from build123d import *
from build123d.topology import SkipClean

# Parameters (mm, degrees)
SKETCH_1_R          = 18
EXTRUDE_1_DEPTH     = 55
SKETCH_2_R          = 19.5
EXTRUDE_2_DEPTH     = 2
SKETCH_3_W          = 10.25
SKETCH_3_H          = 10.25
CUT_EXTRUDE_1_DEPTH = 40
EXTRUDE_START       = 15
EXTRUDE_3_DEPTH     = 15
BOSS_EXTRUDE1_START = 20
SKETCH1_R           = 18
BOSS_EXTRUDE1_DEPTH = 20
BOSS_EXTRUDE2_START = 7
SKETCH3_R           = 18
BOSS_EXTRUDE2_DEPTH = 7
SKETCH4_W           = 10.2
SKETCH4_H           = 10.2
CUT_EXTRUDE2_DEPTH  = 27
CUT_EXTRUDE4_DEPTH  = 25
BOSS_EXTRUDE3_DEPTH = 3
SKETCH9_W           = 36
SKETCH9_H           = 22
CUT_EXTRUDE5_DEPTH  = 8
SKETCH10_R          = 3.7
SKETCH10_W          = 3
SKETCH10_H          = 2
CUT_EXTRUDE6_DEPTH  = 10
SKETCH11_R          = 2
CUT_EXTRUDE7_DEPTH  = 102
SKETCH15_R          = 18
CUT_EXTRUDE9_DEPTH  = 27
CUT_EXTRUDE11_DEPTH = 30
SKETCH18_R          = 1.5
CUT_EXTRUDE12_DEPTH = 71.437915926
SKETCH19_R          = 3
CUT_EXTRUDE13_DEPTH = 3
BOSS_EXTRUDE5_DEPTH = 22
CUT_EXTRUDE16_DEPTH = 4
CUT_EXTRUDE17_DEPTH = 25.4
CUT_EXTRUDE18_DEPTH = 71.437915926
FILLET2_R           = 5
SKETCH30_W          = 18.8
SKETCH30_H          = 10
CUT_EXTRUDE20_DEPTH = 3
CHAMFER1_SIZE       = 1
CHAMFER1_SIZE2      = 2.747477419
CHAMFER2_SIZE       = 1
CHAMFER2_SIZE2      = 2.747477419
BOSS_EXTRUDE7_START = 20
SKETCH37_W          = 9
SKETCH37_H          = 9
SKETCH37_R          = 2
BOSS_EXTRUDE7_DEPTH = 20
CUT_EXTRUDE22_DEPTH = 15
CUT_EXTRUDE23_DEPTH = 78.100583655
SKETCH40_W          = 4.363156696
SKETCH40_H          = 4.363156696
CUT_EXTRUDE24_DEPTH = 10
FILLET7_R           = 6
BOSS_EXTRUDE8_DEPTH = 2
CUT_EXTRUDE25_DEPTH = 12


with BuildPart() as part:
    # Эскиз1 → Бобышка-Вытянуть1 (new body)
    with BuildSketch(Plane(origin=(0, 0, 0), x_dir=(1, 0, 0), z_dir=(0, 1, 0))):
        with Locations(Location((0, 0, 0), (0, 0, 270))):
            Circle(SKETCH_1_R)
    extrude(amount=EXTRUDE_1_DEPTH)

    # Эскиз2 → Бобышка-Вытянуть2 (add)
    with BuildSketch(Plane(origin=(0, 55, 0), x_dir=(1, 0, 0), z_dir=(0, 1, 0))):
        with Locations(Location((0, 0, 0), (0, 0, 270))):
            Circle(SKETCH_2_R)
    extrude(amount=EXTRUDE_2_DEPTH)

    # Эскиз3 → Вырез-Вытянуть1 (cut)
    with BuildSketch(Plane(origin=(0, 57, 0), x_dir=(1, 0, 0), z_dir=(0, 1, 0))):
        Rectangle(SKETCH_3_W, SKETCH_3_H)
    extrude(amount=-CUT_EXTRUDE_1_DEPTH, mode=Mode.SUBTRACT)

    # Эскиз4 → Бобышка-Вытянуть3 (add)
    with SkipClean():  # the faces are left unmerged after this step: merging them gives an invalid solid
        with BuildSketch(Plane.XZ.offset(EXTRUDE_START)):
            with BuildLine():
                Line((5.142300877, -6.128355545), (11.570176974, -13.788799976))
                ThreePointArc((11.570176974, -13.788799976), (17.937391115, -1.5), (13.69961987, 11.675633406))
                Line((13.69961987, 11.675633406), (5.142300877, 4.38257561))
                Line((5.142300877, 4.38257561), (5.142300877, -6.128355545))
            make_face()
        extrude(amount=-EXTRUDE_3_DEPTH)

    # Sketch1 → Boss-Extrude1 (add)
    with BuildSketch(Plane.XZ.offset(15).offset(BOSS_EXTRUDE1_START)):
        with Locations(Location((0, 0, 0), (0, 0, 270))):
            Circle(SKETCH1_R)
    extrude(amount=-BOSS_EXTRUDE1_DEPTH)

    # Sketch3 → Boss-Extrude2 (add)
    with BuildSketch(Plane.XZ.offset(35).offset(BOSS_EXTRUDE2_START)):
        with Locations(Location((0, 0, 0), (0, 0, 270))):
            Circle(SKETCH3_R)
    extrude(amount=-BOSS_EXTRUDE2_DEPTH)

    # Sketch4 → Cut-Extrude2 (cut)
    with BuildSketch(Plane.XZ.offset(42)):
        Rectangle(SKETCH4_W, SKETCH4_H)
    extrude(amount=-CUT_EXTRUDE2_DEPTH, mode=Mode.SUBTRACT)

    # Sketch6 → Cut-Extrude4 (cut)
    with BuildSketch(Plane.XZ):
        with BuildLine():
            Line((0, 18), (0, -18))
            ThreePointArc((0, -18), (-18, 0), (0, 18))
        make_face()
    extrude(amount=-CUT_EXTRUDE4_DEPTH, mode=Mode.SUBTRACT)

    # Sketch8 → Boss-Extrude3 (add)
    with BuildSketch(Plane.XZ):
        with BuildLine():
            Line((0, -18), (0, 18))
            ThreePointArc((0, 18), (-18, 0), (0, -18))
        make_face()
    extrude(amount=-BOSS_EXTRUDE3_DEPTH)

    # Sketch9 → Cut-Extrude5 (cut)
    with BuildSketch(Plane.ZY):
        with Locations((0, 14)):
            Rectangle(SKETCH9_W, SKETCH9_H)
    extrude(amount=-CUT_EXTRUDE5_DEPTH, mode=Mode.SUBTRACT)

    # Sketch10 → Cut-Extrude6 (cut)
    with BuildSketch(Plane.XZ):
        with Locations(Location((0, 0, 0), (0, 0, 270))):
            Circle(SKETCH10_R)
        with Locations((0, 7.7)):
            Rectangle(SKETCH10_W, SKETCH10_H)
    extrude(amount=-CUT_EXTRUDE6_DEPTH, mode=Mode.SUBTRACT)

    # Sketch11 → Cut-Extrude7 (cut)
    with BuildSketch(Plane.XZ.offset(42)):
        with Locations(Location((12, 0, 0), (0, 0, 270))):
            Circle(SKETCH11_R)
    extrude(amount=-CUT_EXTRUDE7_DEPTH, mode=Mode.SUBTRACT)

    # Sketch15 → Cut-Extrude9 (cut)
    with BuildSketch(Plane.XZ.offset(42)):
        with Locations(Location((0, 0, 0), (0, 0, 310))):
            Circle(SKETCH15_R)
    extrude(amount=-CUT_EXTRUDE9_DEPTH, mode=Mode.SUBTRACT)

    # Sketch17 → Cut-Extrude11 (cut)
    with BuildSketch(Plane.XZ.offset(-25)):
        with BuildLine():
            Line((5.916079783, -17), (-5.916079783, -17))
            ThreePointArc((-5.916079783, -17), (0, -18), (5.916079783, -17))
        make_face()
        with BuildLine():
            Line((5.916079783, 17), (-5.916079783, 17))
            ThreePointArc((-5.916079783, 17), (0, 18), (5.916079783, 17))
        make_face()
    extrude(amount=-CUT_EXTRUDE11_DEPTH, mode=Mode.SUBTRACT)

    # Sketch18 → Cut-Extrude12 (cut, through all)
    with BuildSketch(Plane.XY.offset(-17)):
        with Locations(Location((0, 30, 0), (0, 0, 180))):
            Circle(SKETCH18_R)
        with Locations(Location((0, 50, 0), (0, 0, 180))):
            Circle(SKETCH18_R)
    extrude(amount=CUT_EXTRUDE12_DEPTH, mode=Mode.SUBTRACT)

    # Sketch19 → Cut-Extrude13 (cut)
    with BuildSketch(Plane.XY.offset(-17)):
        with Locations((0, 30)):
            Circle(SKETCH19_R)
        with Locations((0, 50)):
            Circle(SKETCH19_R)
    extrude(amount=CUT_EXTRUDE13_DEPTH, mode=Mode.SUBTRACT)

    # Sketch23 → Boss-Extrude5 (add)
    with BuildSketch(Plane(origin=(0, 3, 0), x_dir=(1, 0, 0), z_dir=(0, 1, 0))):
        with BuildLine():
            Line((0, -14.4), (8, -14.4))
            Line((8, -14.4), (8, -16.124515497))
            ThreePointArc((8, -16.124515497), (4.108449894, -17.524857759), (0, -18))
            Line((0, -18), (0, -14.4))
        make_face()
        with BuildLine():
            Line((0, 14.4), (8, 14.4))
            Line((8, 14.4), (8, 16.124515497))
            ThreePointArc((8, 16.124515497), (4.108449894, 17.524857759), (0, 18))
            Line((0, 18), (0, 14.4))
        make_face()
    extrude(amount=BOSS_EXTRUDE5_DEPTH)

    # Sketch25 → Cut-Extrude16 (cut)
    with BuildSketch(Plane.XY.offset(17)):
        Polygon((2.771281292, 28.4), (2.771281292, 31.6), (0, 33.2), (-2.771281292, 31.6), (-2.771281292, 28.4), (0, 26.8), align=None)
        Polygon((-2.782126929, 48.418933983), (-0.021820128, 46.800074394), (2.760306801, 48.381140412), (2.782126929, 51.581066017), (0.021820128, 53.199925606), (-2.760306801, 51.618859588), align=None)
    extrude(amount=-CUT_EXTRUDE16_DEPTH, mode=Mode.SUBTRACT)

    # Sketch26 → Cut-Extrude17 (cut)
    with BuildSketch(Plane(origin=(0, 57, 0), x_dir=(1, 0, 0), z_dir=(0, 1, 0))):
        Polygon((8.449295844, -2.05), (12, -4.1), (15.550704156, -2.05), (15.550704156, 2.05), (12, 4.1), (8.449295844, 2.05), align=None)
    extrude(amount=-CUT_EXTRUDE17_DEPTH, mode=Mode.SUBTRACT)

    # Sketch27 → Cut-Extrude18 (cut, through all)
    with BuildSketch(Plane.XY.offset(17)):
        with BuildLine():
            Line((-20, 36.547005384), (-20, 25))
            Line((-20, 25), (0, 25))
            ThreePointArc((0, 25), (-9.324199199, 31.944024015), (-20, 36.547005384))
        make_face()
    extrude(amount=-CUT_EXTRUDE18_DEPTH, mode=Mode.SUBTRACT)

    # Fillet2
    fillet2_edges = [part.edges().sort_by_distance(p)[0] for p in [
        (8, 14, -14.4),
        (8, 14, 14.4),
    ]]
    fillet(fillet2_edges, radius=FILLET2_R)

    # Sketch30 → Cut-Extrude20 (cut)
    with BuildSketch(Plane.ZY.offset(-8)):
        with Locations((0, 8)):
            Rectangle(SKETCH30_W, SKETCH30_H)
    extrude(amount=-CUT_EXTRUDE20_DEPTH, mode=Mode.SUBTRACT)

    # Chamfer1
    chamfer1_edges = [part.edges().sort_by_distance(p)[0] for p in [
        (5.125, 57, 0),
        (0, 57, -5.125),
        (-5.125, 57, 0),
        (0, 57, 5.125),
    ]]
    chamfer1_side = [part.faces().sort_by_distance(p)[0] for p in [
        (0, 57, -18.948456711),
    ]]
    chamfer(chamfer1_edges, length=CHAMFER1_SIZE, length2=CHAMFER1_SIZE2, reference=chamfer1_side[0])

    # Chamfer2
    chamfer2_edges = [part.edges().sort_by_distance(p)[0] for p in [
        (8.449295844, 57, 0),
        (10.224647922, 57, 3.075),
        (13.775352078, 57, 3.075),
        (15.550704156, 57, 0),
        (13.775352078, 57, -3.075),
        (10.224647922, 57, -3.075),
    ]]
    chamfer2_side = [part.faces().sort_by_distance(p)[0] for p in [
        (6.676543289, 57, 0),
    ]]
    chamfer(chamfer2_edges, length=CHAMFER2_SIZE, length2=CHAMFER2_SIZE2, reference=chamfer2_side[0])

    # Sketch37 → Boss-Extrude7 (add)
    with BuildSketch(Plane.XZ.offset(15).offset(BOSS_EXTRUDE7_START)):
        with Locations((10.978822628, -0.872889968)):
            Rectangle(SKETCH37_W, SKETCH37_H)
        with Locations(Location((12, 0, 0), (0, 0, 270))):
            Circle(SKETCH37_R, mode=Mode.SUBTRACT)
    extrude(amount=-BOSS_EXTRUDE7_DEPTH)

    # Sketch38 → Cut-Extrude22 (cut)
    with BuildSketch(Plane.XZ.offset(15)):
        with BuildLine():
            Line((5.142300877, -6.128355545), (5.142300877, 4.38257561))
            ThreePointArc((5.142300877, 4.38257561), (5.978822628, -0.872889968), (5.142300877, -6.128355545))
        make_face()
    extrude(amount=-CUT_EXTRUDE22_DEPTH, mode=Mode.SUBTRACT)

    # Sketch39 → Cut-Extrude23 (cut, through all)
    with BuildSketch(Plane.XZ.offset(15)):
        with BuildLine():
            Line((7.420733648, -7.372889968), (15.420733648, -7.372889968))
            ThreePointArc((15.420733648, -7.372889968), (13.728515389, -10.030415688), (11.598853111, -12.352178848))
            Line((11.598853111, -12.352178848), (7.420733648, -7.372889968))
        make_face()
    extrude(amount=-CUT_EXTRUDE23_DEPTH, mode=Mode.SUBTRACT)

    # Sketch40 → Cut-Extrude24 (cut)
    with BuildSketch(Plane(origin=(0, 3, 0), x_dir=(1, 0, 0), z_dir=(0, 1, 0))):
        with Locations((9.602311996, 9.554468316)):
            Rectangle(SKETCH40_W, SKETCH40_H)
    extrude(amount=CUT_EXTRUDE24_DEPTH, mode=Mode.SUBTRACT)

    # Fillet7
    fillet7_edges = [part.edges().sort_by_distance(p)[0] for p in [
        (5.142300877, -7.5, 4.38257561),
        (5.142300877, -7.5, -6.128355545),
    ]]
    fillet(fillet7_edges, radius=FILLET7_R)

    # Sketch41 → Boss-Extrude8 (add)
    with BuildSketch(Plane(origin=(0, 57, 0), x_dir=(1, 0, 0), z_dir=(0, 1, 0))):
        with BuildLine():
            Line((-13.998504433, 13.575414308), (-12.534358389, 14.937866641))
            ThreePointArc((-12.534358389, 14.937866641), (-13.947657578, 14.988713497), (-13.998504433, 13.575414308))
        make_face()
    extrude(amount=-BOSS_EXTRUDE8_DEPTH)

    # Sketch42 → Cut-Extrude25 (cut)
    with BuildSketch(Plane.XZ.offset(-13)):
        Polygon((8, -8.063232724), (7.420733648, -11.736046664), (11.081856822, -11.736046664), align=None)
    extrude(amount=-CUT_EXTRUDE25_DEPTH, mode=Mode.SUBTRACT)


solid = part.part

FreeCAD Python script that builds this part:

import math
import FreeCAD as App
import Part
import Sketcher

V = App.Vector
Q = App.Units.Quantity


def edges_at(feature, points):
    """Names of the edges that pass closest to the given points."""
    edges = feature.Shape.Edges
    near = lambda p: min(range(len(edges)), key=lambda i: edges[i].distToShape(Part.Vertex(*p))[0])
    return sorted({f"Edge{near(p) + 1}" for p in points})


def add_polygon(sketch, points):
    """Adds a closed chain of lines whose ends are joined by coincident constraints."""
    first, n = sketch.GeometryCount, len(points)
    for a, b in zip(points, points[1:] + points[:1]):
        sketch.addGeometry(Part.LineSegment(App.Vector(*a, 0), App.Vector(*b, 0)), False)
    for i in range(n):
        sketch.addConstraint(Sketcher.Constraint("Coincident", first + i, 2, first + (i + 1) % n, 1))

doc = App.newDocument("Part")
body = doc.addObject("PartDesign::Body", "Body")

sketch1 = body.newObject("Sketcher::SketchObject", "Sketch")
sketch1.AttachmentSupport = (doc.getObject("XZ_Plane"), [""])
sketch1.MapMode = "FlatFace"
sketch1.addGeometry(Part.Circle(V(0, 0, 0), V(0, 0, 1), 18), False)
sketch1.addConstraint(Sketcher.Constraint("Coincident", 0, 3, -1, 1))
sketch1.addConstraint(Sketcher.Constraint("Diameter", 0, Q("36 mm")))
pad1 = body.newObject("PartDesign::Pad", "Pad")
pad1.Profile = sketch1
pad1.Length = 55
pad1.Reversed = True

sketch2 = body.newObject("Sketcher::SketchObject", "Sketch001")
sketch2.AttachmentSupport = (doc.getObject("XZ_Plane"), [""])
sketch2.MapMode = "FlatFace"
sketch2.AttachmentOffset = App.Placement(V(0, 0, -55), App.Rotation())
sketch2.addGeometry(Part.Circle(V(0, 0, 0), V(0, 0, 1), 20), False)
sketch2.addConstraint(Sketcher.Constraint("Coincident", 0, 3, -1, 1))
sketch2.addConstraint(Sketcher.Constraint("Diameter", 0, Q("39 mm")))
pad2 = body.newObject("PartDesign::Pad", "Pad001")
pad2.Profile = sketch2
pad2.Length = 2
pad2.Reversed = True

sketch3 = body.newObject("Sketcher::SketchObject", "Sketch002")
sketch3.AttachmentSupport = (doc.getObject("XZ_Plane"), [""])
sketch3.MapMode = "FlatFace"
sketch3.AttachmentOffset = App.Placement(V(0, 0, -57), App.Rotation())
add_polygon(sketch3, [(-5, -5), (-5, 5), (5, 5), (5, -5)])
sketch3.addConstraint(Sketcher.Constraint("Vertical", 0))
sketch3.addConstraint(Sketcher.Constraint("Horizontal", 1))
sketch3.addConstraint(Sketcher.Constraint("Vertical", 2))
sketch3.addConstraint(Sketcher.Constraint("Horizontal", 3))
sketch3.addConstraint(Sketcher.Constraint("Symmetric", 0, 2, 2, 2, -1, 1))
sketch3.addConstraint(Sketcher.Constraint("Equal", 3, 0))
sketch3.addConstraint(Sketcher.Constraint("DistanceX", 1, 1, 1, 2, Q("10.25 mm")))
pocket1 = body.newObject("PartDesign::Pocket", "Pocket")
pocket1.Profile = sketch3
pocket1.Length = 40
pocket1.Reversed = True

sketch4 = body.newObject("Sketcher::SketchObject", "Sketch003")
sketch4.AttachmentSupport = (doc.getObject("XZ_Plane"), [""])
sketch4.MapMode = "FlatFace"
sketch4.AttachmentOffset = App.Placement(V(0, 0, 15), App.Rotation())
sketch4.addGeometry(Part.LineSegment(V(5, -6, 0), V(12, -14, 0)), False)
sketch4.addGeometry(Part.ArcOfCircle(Part.Circle(V(0, 0, 0), V(0, 0, 1), 18), math.radians(-50), math.radians(40)), False)
sketch4.addGeometry(Part.LineSegment(V(14, 12, 0), V(5, 4, 0)), False)
sketch4.addGeometry(Part.LineSegment(V(5, 4, 0), V(5, -6, 0)), False)
sketch4.addConstraint(Sketcher.Constraint("Coincident", 0, 2, 1, 1))
sketch4.addConstraint(Sketcher.Constraint("Coincident", 1, 2, 2, 1))
sketch4.addConstraint(Sketcher.Constraint("Coincident", 2, 2, 3, 1))
sketch4.addConstraint(Sketcher.Constraint("Coincident", 3, 2, 0, 1))
sketch4.addConstraint(Sketcher.Constraint("Vertical", 3))
sketch4.addConstraint(Sketcher.Constraint("Coincident", 1, 3, -1, 1))
sketch4.addConstraint(Sketcher.Constraint("Radius", 1, Q("18 mm")))
sketch4.addConstraint(Sketcher.Constraint("Angle", 0, Q("-50 deg")))
sketch4.addConstraint(Sketcher.Constraint("Distance", 0, Q("10 mm")))
sketch4.addConstraint(Sketcher.Constraint("DistanceY", 3, 2, 3, 1, Q("10.510931 mm")))
sketch4.addConstraint(Sketcher.Constraint("DistanceY", 0, 2, -1, 1, Q("13.7888 mm")))
sketch4.addConstraint(Sketcher.Constraint("DistanceX", -1, 1, 1, 2, Q("13.69962 mm")))
pad3 = body.newObject("PartDesign::Pad", "Pad002")
pad3.Profile = sketch4
pad3.Length = 15
pad3.Reversed = True

sketch5 = body.newObject("Sketcher::SketchObject", "Sketch004")
sketch5.AttachmentSupport = (doc.getObject("XZ_Plane"), [""])
sketch5.MapMode = "FlatFace"
sketch5.AttachmentOffset = App.Placement(V(0, 0, 35), App.Rotation())
sketch5.addGeometry(Part.Circle(V(0, 0, 0), V(0, 0, 1), 18), False)
sketch5.addConstraint(Sketcher.Constraint("Coincident", 0, 3, -1, 1))
sketch5.addConstraint(Sketcher.Constraint("Diameter", 0, Q("36 mm")))
pad4 = body.newObject("PartDesign::Pad", "Pad003")
pad4.Profile = sketch5
pad4.Length = 20
pad4.Reversed = True

sketch6 = body.newObject("Sketcher::SketchObject", "Sketch005")
sketch6.AttachmentSupport = (doc.getObject("XZ_Plane"), [""])
sketch6.MapMode = "FlatFace"
sketch6.AttachmentOffset = App.Placement(V(0, 0, 42), App.Rotation())
sketch6.addGeometry(Part.Circle(V(0, 0, 0), V(0, 0, 1), 18), False)
sketch6.addConstraint(Sketcher.Constraint("Coincident", 0, 3, -1, 1))
sketch6.addConstraint(Sketcher.Constraint("Diameter", 0, Q("36 mm")))
pad5 = body.newObject("PartDesign::Pad", "Pad004")
pad5.Profile = sketch6
pad5.Length = 7
pad5.Reversed = True

sketch7 = body.newObject("Sketcher::SketchObject", "Sketch006")
sketch7.AttachmentSupport = (doc.getObject("XZ_Plane"), [""])
sketch7.MapMode = "FlatFace"
sketch7.AttachmentOffset = App.Placement(V(0, 0, 42), App.Rotation())
add_polygon(sketch7, [(-5, 5), (-5, -5), (5, -5), (5, 5)])
sketch7.addConstraint(Sketcher.Constraint("Vertical", 0))
sketch7.addConstraint(Sketcher.Constraint("Horizontal", 1))
sketch7.addConstraint(Sketcher.Constraint("Vertical", 2))
sketch7.addConstraint(Sketcher.Constraint("Horizontal", 3))
sketch7.addConstraint(Sketcher.Constraint("Symmetric", 0, 2, 2, 2, -1, 1))
sketch7.addConstraint(Sketcher.Constraint("Equal", 3, 0))
sketch7.addConstraint(Sketcher.Constraint("DistanceX", 1, 1, 1, 2, Q("10.2 mm")))
pocket2 = body.newObject("PartDesign::Pocket", "Pocket001")
pocket2.Profile = sketch7
pocket2.Length = 27

sketch8 = body.newObject("Sketcher::SketchObject", "Sketch007")
sketch8.AttachmentSupport = (doc.getObject("XZ_Plane"), [""])
sketch8.MapMode = "FlatFace"
sketch8.addGeometry(Part.LineSegment(V(0, -18, 0), V(0, 18, 0)), False)
sketch8.addGeometry(Part.ArcOfCircle(Part.Circle(V(0, 0, 0), V(0, 0, 1), 18), math.radians(90), math.radians(270)), False)
sketch8.addConstraint(Sketcher.Constraint("Coincident", 0, 1, 1, 2))
sketch8.addConstraint(Sketcher.Constraint("Coincident", 1, 1, 0, 2))
sketch8.addConstraint(Sketcher.Constraint("Vertical", 0))
sketch8.addConstraint(Sketcher.Constraint("Coincident", 1, 3, -1, 1))
sketch8.addConstraint(Sketcher.Constraint("PointOnObject", 0, 1, -2))
sketch8.addConstraint(Sketcher.Constraint("Radius", 1, Q("18 mm")))
pocket3 = body.newObject("PartDesign::Pocket", "Pocket002")
pocket3.Profile = sketch8
pocket3.Length = 25

sketch9 = body.newObject("Sketcher::SketchObject", "Sketch008")
sketch9.AttachmentSupport = (doc.getObject("XZ_Plane"), [""])
sketch9.MapMode = "FlatFace"
sketch9.addGeometry(Part.LineSegment(V(0, -18, 0), V(0, 18, 0)), False)
sketch9.addGeometry(Part.ArcOfCircle(Part.Circle(V(0, 0, 0), V(0, 0, 1), 18), math.radians(90), math.radians(270)), False)
sketch9.addConstraint(Sketcher.Constraint("Coincident", 0, 1, 1, 2))
sketch9.addConstraint(Sketcher.Constraint("Coincident", 1, 1, 0, 2))
sketch9.addConstraint(Sketcher.Constraint("Vertical", 0))
sketch9.addConstraint(Sketcher.Constraint("Coincident", 1, 3, -1, 1))
sketch9.addConstraint(Sketcher.Constraint("PointOnObject", 0, 1, -2))
sketch9.addConstraint(Sketcher.Constraint("Radius", 1, Q("18 mm")))
pad6 = body.newObject("PartDesign::Pad", "Pad005")
pad6.Profile = sketch9
pad6.Length = 3
pad6.Reversed = True

sketch10 = body.newObject("Sketcher::SketchObject", "Sketch009")
sketch10.AttachmentSupport = (doc.getObject("YZ_Plane"), [""])
sketch10.MapMode = "FlatFace"
add_polygon(sketch10, [(25, -18), (3, -18), (3, 18), (25, 18)])
sketch10.addConstraint(Sketcher.Constraint("Horizontal", 0))
sketch10.addConstraint(Sketcher.Constraint("Vertical", 1))
sketch10.addConstraint(Sketcher.Constraint("Horizontal", 2))
sketch10.addConstraint(Sketcher.Constraint("Vertical", 3))
sketch10.addConstraint(Sketcher.Constraint("DistanceX", 0, 2, 0, 1, Q("22 mm")))
sketch10.addConstraint(Sketcher.Constraint("DistanceY", 1, 1, 1, 2, Q("36 mm")))
sketch10.addConstraint(Sketcher.Constraint("DistanceX", -1, 1, 0, 2, Q("3 mm")))
sketch10.addConstraint(Sketcher.Constraint("DistanceY", 0, 2, -1, 1, Q("18 mm")))
pocket4 = body.newObject("PartDesign::Pocket", "Pocket003")
pocket4.Profile = sketch10
pocket4.Length = 8
pocket4.Reversed = True

sketch11 = body.newObject("Sketcher::SketchObject", "Sketch010")
sketch11.AttachmentSupport = (doc.getObject("XZ_Plane"), [""])
sketch11.MapMode = "FlatFace"
sketch11.addGeometry(Part.Circle(V(0, 0, 0), V(0, 0, 1), 3.7), False)
add_polygon(sketch11, [(-1.5, 8.7), (-1.5, 6.7), (1.5, 6.7), (1.5, 8.7)])
sketch11.addConstraint(Sketcher.Constraint("Vertical", 1))
sketch11.addConstraint(Sketcher.Constraint("Horizontal", 2))
sketch11.addConstraint(Sketcher.Constraint("Vertical", 3))
sketch11.addConstraint(Sketcher.Constraint("Horizontal", 4))
sketch11.addConstraint(Sketcher.Constraint("Coincident", 0, 3, -1, 1))
sketch11.addConstraint(Sketcher.Constraint("Diameter", 0, Q("7.4 mm")))
sketch11.addConstraint(Sketcher.Constraint("DistanceX", 2, 1, 2, 2, Q("3 mm")))
sketch11.addConstraint(Sketcher.Constraint("DistanceY", 1, 2, 1, 1, Q("2 mm")))
sketch11.addConstraint(Sketcher.Constraint("DistanceX", 1, 2, -1, 1, Q("1.5 mm")))
sketch11.addConstraint(Sketcher.Constraint("DistanceY", -1, 1, 1, 2, Q("6.7 mm")))
pocket5 = body.newObject("PartDesign::Pocket", "Pocket004")
pocket5.Profile = sketch11
pocket5.Length = 10

sketch12 = body.newObject("Sketcher::SketchObject", "Sketch011")
sketch12.AttachmentSupport = (doc.getObject("XZ_Plane"), [""])
sketch12.MapMode = "FlatFace"
sketch12.AttachmentOffset = App.Placement(V(0, 0, 42), App.Rotation())
sketch12.addGeometry(Part.Circle(V(12, 0, 0), V(0, 0, 1), 2), False)
sketch12.addConstraint(Sketcher.Constraint("PointOnObject", 0, 3, -1))
sketch12.addConstraint(Sketcher.Constraint("Diameter", 0, Q("4 mm")))
sketch12.addConstraint(Sketcher.Constraint("DistanceX", -1, 1, 0, 3, Q("12 mm")))
pocket6 = body.newObject("PartDesign::Pocket", "Pocket005")
pocket6.Profile = sketch12
pocket6.Length = 102

sketch13 = body.newObject("Sketcher::SketchObject", "Sketch012")
sketch13.AttachmentSupport = (doc.getObject("XZ_Plane"), [""])
sketch13.MapMode = "FlatFace"
sketch13.AttachmentOffset = App.Placement(V(0, 0, 42), App.Rotation())
sketch13.addGeometry(Part.Circle(V(0, 0, 0), V(0, 0, 1), 18), False)
sketch13.addConstraint(Sketcher.Constraint("Coincident", 0, 3, -1, 1))
sketch13.addConstraint(Sketcher.Constraint("Diameter", 0, Q("36 mm")))
pocket7 = body.newObject("PartDesign::Pocket", "Pocket006")
pocket7.Profile = sketch13
pocket7.Length = 27

sketch14 = body.newObject("Sketcher::SketchObject", "Sketch013")
sketch14.AttachmentSupport = (doc.getObject("XZ_Plane"), [""])
sketch14.MapMode = "FlatFace"
sketch14.AttachmentOffset = App.Placement(V(0, 0, -25), App.Rotation())
sketch14.addGeometry(Part.LineSegment(V(6, -17, 0), V(-6, -17, 0)), False)
sketch14.addGeometry(Part.ArcOfCircle(Part.Circle(V(0, 0, 0), V(0, 0, 1), 18), math.radians(-109), math.radians(-71)), False)
sketch14.addGeometry(Part.LineSegment(V(-6, 17, 0), V(6, 17, 0)), False)
sketch14.addGeometry(Part.ArcOfCircle(Part.Circle(V(0, 0, 0), V(0, 0, 1), 18), math.radians(71), math.radians(109)), False)
sketch14.addConstraint(Sketcher.Constraint("Coincident", 0, 1, 1, 2))
sketch14.addConstraint(Sketcher.Constraint("Coincident", 1, 1, 0, 2))
sketch14.addConstraint(Sketcher.Constraint("Coincident", 2, 1, 3, 2))
sketch14.addConstraint(Sketcher.Constraint("Coincident", 3, 1, 2, 2))
sketch14.addConstraint(Sketcher.Constraint("Horizontal", 0))
sketch14.addConstraint(Sketcher.Constraint("Horizontal", 2))
sketch14.addConstraint(Sketcher.Constraint("Coincident", 1, 3, -1, 1))
sketch14.addConstraint(Sketcher.Constraint("Coincident", 3, 3, -1, 1))
sketch14.addConstraint(Sketcher.Constraint("Equal", 1, 3))
sketch14.addConstraint(Sketcher.Constraint("Vertical", 1, 1, 2, 1))
sketch14.addConstraint(Sketcher.Constraint("Radius", 1, Q("18 mm")))
sketch14.addConstraint(Sketcher.Constraint("DistanceY", 0, 1, -1, 1, Q("17 mm")))
pocket8 = body.newObject("PartDesign::Pocket", "Pocket007")
pocket8.Profile = sketch14
pocket8.Length = 30

sketch15 = body.newObject("Sketcher::SketchObject", "Sketch014")
sketch15.AttachmentSupport = (doc.getObject("XY_Plane"), [""])
sketch15.MapMode = "FlatFace"
sketch15.AttachmentOffset = App.Placement(V(0, 0, -17), App.Rotation())
sketch15.addGeometry(Part.Circle(V(0, 30, 0), V(0, 0, 1), 1.5), False)
sketch15.addGeometry(Part.Circle(V(0, 50, 0), V(0, 0, 1), 1.5), False)
sketch15.addConstraint(Sketcher.Constraint("Equal", 0, 1))
sketch15.addConstraint(Sketcher.Constraint("PointOnObject", 0, 3, -2))
sketch15.addConstraint(Sketcher.Constraint("PointOnObject", 1, 3, -2))
sketch15.addConstraint(Sketcher.Constraint("Diameter", 0, Q("3 mm")))
sketch15.addConstraint(Sketcher.Constraint("DistanceY", -1, 1, 0, 3, Q("30 mm")))
sketch15.addConstraint(Sketcher.Constraint("DistanceY", -1, 1, 1, 3, Q("50 mm")))
pocket9 = body.newObject("PartDesign::Pocket", "Pocket008")
pocket9.Profile = sketch15
pocket9.Type = "ThroughAll"
pocket9.Reversed = True

sketch16 = body.newObject("Sketcher::SketchObject", "Sketch015")
sketch16.AttachmentSupport = (doc.getObject("XY_Plane"), [""])
sketch16.MapMode = "FlatFace"
sketch16.AttachmentOffset = App.Placement(V(0, 0, -17), App.Rotation())
sketch16.addGeometry(Part.Circle(V(0, 30, 0), V(0, 0, 1), 3), False)
sketch16.addGeometry(Part.Circle(V(0, 50, 0), V(0, 0, 1), 3), False)
sketch16.addConstraint(Sketcher.Constraint("Equal", 0, 1))
sketch16.addConstraint(Sketcher.Constraint("PointOnObject", 0, 3, -2))
sketch16.addConstraint(Sketcher.Constraint("PointOnObject", 1, 3, -2))
sketch16.addConstraint(Sketcher.Constraint("Diameter", 0, Q("6 mm")))
sketch16.addConstraint(Sketcher.Constraint("DistanceY", -1, 1, 0, 3, Q("30 mm")))
sketch16.addConstraint(Sketcher.Constraint("DistanceY", -1, 1, 1, 3, Q("50 mm")))
pocket10 = body.newObject("PartDesign::Pocket", "Pocket009")
pocket10.Profile = sketch16
pocket10.Length = 3
pocket10.Reversed = True

sketch17 = body.newObject("Sketcher::SketchObject", "Sketch016")
sketch17.AttachmentSupport = (doc.getObject("XZ_Plane"), [""])
sketch17.MapMode = "FlatFace"
sketch17.AttachmentOffset = App.Placement(V(0, 0, -3), App.Rotation())
sketch17.addGeometry(Part.LineSegment(V(8, 14.4, 0), V(0, 14.4, 0)), False)
sketch17.addGeometry(Part.LineSegment(V(0, 14.4, 0), V(0, 18, 0)), False)
sketch17.addGeometry(Part.ArcOfCircle(Part.Circle(V(0, 0, 0), V(0, 0, 1), 18), math.radians(64), math.radians(90)), False)
sketch17.addGeometry(Part.LineSegment(V(8, 16.1, 0), V(8, 14.4, 0)), False)
sketch17.addGeometry(Part.LineSegment(V(0, -14.4, 0), V(8, -14.4, 0)), False)
sketch17.addGeometry(Part.LineSegment(V(8, -14.4, 0), V(8, -16.1, 0)), False)
sketch17.addGeometry(Part.ArcOfCircle(Part.Circle(V(0, 0, 0), V(0, 0, 1), 18), math.radians(-90), math.radians(-64)), False)
sketch17.addGeometry(Part.LineSegment(V(0, -18, 0), V(0, -14.4, 0)), False)
sketch17.addConstraint(Sketcher.Constraint("Coincident", 0, 2, 1, 1))
sketch17.addConstraint(Sketcher.Constraint("Coincident", 1, 2, 2, 2))
sketch17.addConstraint(Sketcher.Constraint("Coincident", 2, 1, 3, 1))
sketch17.addConstraint(Sketcher.Constraint("Coincident", 3, 2, 0, 1))
sketch17.addConstraint(Sketcher.Constraint("Coincident", 4, 2, 5, 1))
sketch17.addConstraint(Sketcher.Constraint("Coincident", 5, 2, 6, 2))
sketch17.addConstraint(Sketcher.Constraint("Coincident", 6, 1, 7, 1))
sketch17.addConstraint(Sketcher.Constraint("Coincident", 7, 2, 4, 1))
sketch17.addConstraint(Sketcher.Constraint("Horizontal", 0))
sketch17.addConstraint(Sketcher.Constraint("Vertical", 1))
sketch17.addConstraint(Sketcher.Constraint("Vertical", 3))
sketch17.addConstraint(Sketcher.Constraint("Horizontal", 4))
sketch17.addConstraint(Sketcher.Constraint("Vertical", 5))
sketch17.addConstraint(Sketcher.Constraint("Vertical", 7))
sketch17.addConstraint(Sketcher.Constraint("Coincident", 2, 3, -1, 1))
sketch17.addConstraint(Sketcher.Constraint("Coincident", 6, 3, -1, 1))
sketch17.addConstraint(Sketcher.Constraint("Equal", 2, 6))
sketch17.addConstraint(Sketcher.Constraint("Symmetric", 0, 2, 7, 2, -1, 1))
sketch17.addConstraint(Sketcher.Constraint("PointOnObject", 0, 2, -2))
sketch17.addConstraint(Sketcher.Constraint("Vertical", 3, 2, 4, 2))
sketch17.addConstraint(Sketcher.Constraint("Radius", 2, Q("18 mm")))
sketch17.addConstraint(Sketcher.Constraint("DistanceX", 0, 2, 0, 1, Q("8 mm")))
sketch17.addConstraint(Sketcher.Constraint("DistanceY", 1, 1, 1, 2, Q("3.6 mm")))
pad7 = body.newObject("PartDesign::Pad", "Pad006")
pad7.Profile = sketch17
pad7.Length = 22
pad7.Reversed = True

sketch18 = body.newObject("Sketcher::SketchObject", "Sketch017")
sketch18.AttachmentSupport = (doc.getObject("XY_Plane"), [""])
sketch18.MapMode = "FlatFace"
sketch18.AttachmentOffset = App.Placement(V(0, 0, 17), App.Rotation())
add_polygon(sketch18, [(2.8, 28.4), (2.8, 31.6), (0, 33.2), (-2.8, 31.6), (-2.8, 28.4), (0, 26.8)])
add_polygon(sketch18, [(-2.8, 48.4), (0, 46.8), (2.8, 48.4), (2.8, 51.6), (0, 53.2), (-2.8, 51.6)])
sketch18.addConstraint(Sketcher.Constraint("Vertical", 0))
sketch18.addConstraint(Sketcher.Constraint("Vertical", 3))
sketch18.addConstraint(Sketcher.Constraint("Symmetric", 0, 2, 2, 2, -2))
sketch18.addConstraint(Sketcher.Constraint("PointOnObject", 1, 2, -2))
sketch18.addConstraint(Sketcher.Constraint("PointOnObject", 4, 2, -2))
sketch18.addConstraint(Sketcher.Constraint("Parallel", 1, 4))
sketch18.addConstraint(Sketcher.Constraint("Parallel", 2, 5))
sketch18.addConstraint(Sketcher.Constraint("Parallel", 6, 9))
sketch18.addConstraint(Sketcher.Constraint("Parallel", 7, 10))
sketch18.addConstraint(Sketcher.Constraint("Parallel", 8, 11))
sketch18.addConstraint(Sketcher.Constraint("Equal", 5, 6))
sketch18.addConstraint(Sketcher.Constraint("Equal", 6, 7))
sketch18.addConstraint(Sketcher.Constraint("Equal", 7, 8))
sketch18.addConstraint(Sketcher.Constraint("Equal", 8, 9))
sketch18.addConstraint(Sketcher.Constraint("Angle", 1, Q("150 deg")))
sketch18.addConstraint(Sketcher.Constraint("DistanceY", 0, 1, 0, 2, Q("3.2 mm")))
sketch18.addConstraint(Sketcher.Constraint("Distance", 1, Q("3.2 mm")))
sketch18.addConstraint(Sketcher.Constraint("DistanceY", -1, 1, 0, 2, Q("31.6 mm")))
sketch18.addConstraint(Sketcher.Constraint("DistanceX", 6, 2, 0, 2, Q("2.793101 mm")))
sketch18.addConstraint(Sketcher.Constraint("DistanceY", -1, 1, 7, 2, Q("48.38114 mm")))
sketch18.addConstraint(Sketcher.Constraint("DistanceX", -1, 1, 9, 2, Q("0.02182 mm")))
sketch18.addConstraint(Sketcher.Constraint("DistanceY", -1, 1, 10, 2, Q("51.61886 mm")))
sketch18.addConstraint(Sketcher.Constraint("DistanceX", 2, 2, 7, 2, Q("5.531588 mm")))
pocket11 = body.newObject("PartDesign::Pocket", "Pocket010")
pocket11.Profile = sketch18
pocket11.Length = 4

sketch19 = body.newObject("Sketcher::SketchObject", "Sketch018")
sketch19.AttachmentSupport = (doc.getObject("XZ_Plane"), [""])
sketch19.MapMode = "FlatFace"
sketch19.AttachmentOffset = App.Placement(V(0, 0, -57), App.Rotation())
add_polygon(sketch19, [(8.4, 2), (12, 4.1), (15.6, 2), (15.6, -2), (12, -4.1), (8.4, -2)])
sketch19.addConstraint(Sketcher.Constraint("Vertical", 2))
sketch19.addConstraint(Sketcher.Constraint("Vertical", 5))
sketch19.addConstraint(Sketcher.Constraint("Symmetric", 0, 2, 3, 2, -1))
sketch19.addConstraint(Sketcher.Constraint("Parallel", 0, 3))
sketch19.addConstraint(Sketcher.Constraint("Parallel", 1, 4))
sketch19.addConstraint(Sketcher.Constraint("Horizontal", 2, 2, 4, 2))
sketch19.addConstraint(Sketcher.Constraint("Horizontal", 1, 2, 5, 2))
sketch19.addConstraint(Sketcher.Constraint("Angle", 0, Q("30 deg")))
sketch19.addConstraint(Sketcher.Constraint("DistanceY", 2, 2, 2, 1, Q("4.1 mm")))
sketch19.addConstraint(Sketcher.Constraint("DistanceX", -1, 1, 0, 2, Q("12 mm")))
sketch19.addConstraint(Sketcher.Constraint("Distance", 0, Q("4.1 mm")))
pocket12 = body.newObject("PartDesign::Pocket", "Pocket011")
pocket12.Profile = sketch19
pocket12.Length = 25.4
pocket12.Reversed = True

sketch20 = body.newObject("Sketcher::SketchObject", "Sketch019")
sketch20.AttachmentSupport = (doc.getObject("XY_Plane"), [""])
sketch20.MapMode = "FlatFace"
sketch20.AttachmentOffset = App.Placement(V(0, 0, 17), App.Rotation())
sketch20.addGeometry(Part.LineSegment(V(-20, 37, 0), V(-20, 25, 0)), False)
sketch20.addGeometry(Part.LineSegment(V(-20, 25, 0), V(0, 25, 0)), False)
sketch20.addGeometry(Part.ArcOfCircle(Part.Circle(V(-34, -11, 0), V(0, 0, 1), 50), math.radians(47), math.radians(73)), False)
sketch20.addConstraint(Sketcher.Constraint("Coincident", 0, 2, 1, 1))
sketch20.addConstraint(Sketcher.Constraint("Coincident", 1, 2, 2, 1))
sketch20.addConstraint(Sketcher.Constraint("Coincident", 2, 2, 0, 1))
sketch20.addConstraint(Sketcher.Constraint("Vertical", 0))
sketch20.addConstraint(Sketcher.Constraint("Horizontal", 1))
sketch20.addConstraint(Sketcher.Constraint("PointOnObject", 1, 2, -2))
sketch20.addConstraint(Sketcher.Constraint("Radius", 2, Q("50 mm")))
sketch20.addConstraint(Sketcher.Constraint("DistanceX", 1, 1, 1, 2, Q("20 mm")))
sketch20.addConstraint(Sketcher.Constraint("DistanceY", -1, 1, 0, 2, Q("25 mm")))
sketch20.addConstraint(Sketcher.Constraint("DistanceX", 2, 3, -1, 1, Q("34.324199 mm")))
pocket13 = body.newObject("PartDesign::Pocket", "Pocket012")
pocket13.Profile = sketch20
pocket13.Type = "ThroughAll"
doc.recompute()

fillet = body.newObject("PartDesign::Fillet", "Fillet")
fillet.Base = (pocket13, edges_at(pocket13, [(8, 14, -14.4), (8, 14, 14.4)]))
fillet.Radius = 5

sketch21 = body.newObject("Sketcher::SketchObject", "Sketch020")
sketch21.AttachmentSupport = (doc.getObject("YZ_Plane"), [""])
sketch21.MapMode = "FlatFace"
sketch21.AttachmentOffset = App.Placement(V(0, 0, 8), App.Rotation())
add_polygon(sketch21, [(13, -9), (3, -9), (3, 9), (13, 9)])
sketch21.addConstraint(Sketcher.Constraint("Horizontal", 0))
sketch21.addConstraint(Sketcher.Constraint("Vertical", 1))
sketch21.addConstraint(Sketcher.Constraint("Horizontal", 2))
sketch21.addConstraint(Sketcher.Constraint("Vertical", 3))
sketch21.addConstraint(Sketcher.Constraint("DistanceX", 0, 2, 0, 1, Q("10 mm")))
sketch21.addConstraint(Sketcher.Constraint("DistanceY", 1, 1, 1, 2, Q("18.8 mm")))
sketch21.addConstraint(Sketcher.Constraint("DistanceX", -1, 1, 0, 2, Q("3 mm")))
sketch21.addConstraint(Sketcher.Constraint("DistanceY", 0, 2, -1, 1, Q("9.4 mm")))
pocket14 = body.newObject("PartDesign::Pocket", "Pocket013")
pocket14.Profile = sketch21
pocket14.Length = 3
pocket14.Reversed = True
doc.recompute()

chamfer = body.newObject("PartDesign::Chamfer", "Chamfer")
chamfer.Base = (pocket14, edges_at(pocket14, [
    (5.125, 57, 0),
    (0, 57, -5.125),
    (-5.125, 57, 0),
    (0, 57, 5.125),
]))
chamfer.ChamferType = "Two distances"
chamfer.Size = 1
chamfer.Size2 = 2.747477
chamfer.FlipDirection = True
doc.recompute()

chamfer2 = body.newObject("PartDesign::Chamfer", "Chamfer001")
chamfer2.Base = (chamfer, edges_at(chamfer, [
    (8.449, 57, 0),
    (10.225, 57, 3.075),
    (13.775, 57, 3.075),
    (15.551, 57, 0),
    (13.775, 57, -3.075),
    (10.225, 57, -3.075),
]))
chamfer2.ChamferType = "Two distances"
chamfer2.Size = 1
chamfer2.Size2 = 2.747477

sketch22 = body.newObject("Sketcher::SketchObject", "Sketch021")
sketch22.AttachmentSupport = (doc.getObject("XZ_Plane"), [""])
sketch22.MapMode = "FlatFace"
sketch22.AttachmentOffset = App.Placement(V(0, 0, 35), App.Rotation())
add_polygon(sketch22, [(6.5, 3.6), (6.5, -5.4), (15.5, -5.4), (15.5, 3.6)])
sketch22.addGeometry(Part.Circle(V(12, 0, 0), V(0, 0, 1), 2), False)
sketch22.addConstraint(Sketcher.Constraint("Vertical", 0))
sketch22.addConstraint(Sketcher.Constraint("Horizontal", 1))
sketch22.addConstraint(Sketcher.Constraint("Vertical", 2))
sketch22.addConstraint(Sketcher.Constraint("Horizontal", 3))
sketch22.addConstraint(Sketcher.Constraint("PointOnObject", 4, 3, -1))
sketch22.addConstraint(Sketcher.Constraint("Equal", 3, 0))
sketch22.addConstraint(Sketcher.Constraint("Diameter", 4, Q("4 mm")))
sketch22.addConstraint(Sketcher.Constraint("DistanceX", 1, 1, 1, 2, Q("9 mm")))
sketch22.addConstraint(Sketcher.Constraint("DistanceX", -1, 1, 4, 3, Q("12 mm")))
sketch22.addConstraint(Sketcher.Constraint("DistanceY", 0, 2, -1, 1, Q("5.37289 mm")))
sketch22.addConstraint(Sketcher.Constraint("DistanceX", -1, 1, 0, 2, Q("6.478823 mm")))
pad8 = body.newObject("PartDesign::Pad", "Pad007")
pad8.Profile = sketch22
pad8.Length = 20
pad8.Reversed = True

sketch23 = body.newObject("Sketcher::SketchObject", "Sketch022")
sketch23.AttachmentSupport = (doc.getObject("XZ_Plane"), [""])
sketch23.MapMode = "FlatFace"
sketch23.AttachmentOffset = App.Placement(V(0, 0, 15), App.Rotation())
sketch23.addGeometry(Part.LineSegment(V(5, 4, 0), V(5, -6, 0)), False)
sketch23.addGeometry(Part.ArcOfCircle(Part.Circle(V(-11, -1, 0), V(0, 0, 1), 17), math.radians(-18), math.radians(18)), False)
sketch23.addConstraint(Sketcher.Constraint("Coincident", 0, 1, 1, 2))
sketch23.addConstraint(Sketcher.Constraint("Coincident", 1, 1, 0, 2))
sketch23.addConstraint(Sketcher.Constraint("Vertical", 0))
sketch23.addConstraint(Sketcher.Constraint("Radius", 1, Q("16.927048 mm")))
sketch23.addConstraint(Sketcher.Constraint("DistanceY", 0, 2, 0, 1, Q("10.510931 mm")))
sketch23.addConstraint(Sketcher.Constraint("DistanceX", -1, 1, 0, 1, Q("5.142301 mm")))
sketch23.addConstraint(Sketcher.Constraint("DistanceY", 1, 3, -1, 1, Q("0.87289 mm")))
pocket15 = body.newObject("PartDesign::Pocket", "Pocket014")
pocket15.Profile = sketch23
pocket15.Length = 15

sketch24 = body.newObject("Sketcher::SketchObject", "Sketch023")
sketch24.AttachmentSupport = (doc.getObject("XZ_Plane"), [""])
sketch24.MapMode = "FlatFace"
sketch24.AttachmentOffset = App.Placement(V(0, 0, 15), App.Rotation())
sketch24.addGeometry(Part.LineSegment(V(15, -7, 0), V(7, -7, 0)), False)
sketch24.addGeometry(Part.LineSegment(V(7, -7, 0), V(12, -12, 0)), False)
sketch24.addGeometry(Part.ArcOfCircle(Part.Circle(V(-1, 1, 0), V(0, 0, 1), 18), math.radians(-48), math.radians(-27)), False)
sketch24.addConstraint(Sketcher.Constraint("Coincident", 0, 2, 1, 1))
sketch24.addConstraint(Sketcher.Constraint("Coincident", 1, 2, 2, 1))
sketch24.addConstraint(Sketcher.Constraint("Coincident", 2, 2, 0, 1))
sketch24.addConstraint(Sketcher.Constraint("Horizontal", 0))
sketch24.addConstraint(Sketcher.Constraint("Radius", 2, Q("18 mm")))
sketch24.addConstraint(Sketcher.Constraint("DistanceX", 0, 2, 0, 1, Q("8 mm")))
sketch24.addConstraint(Sketcher.Constraint("Angle", 1, Q("-50 deg")))
sketch24.addConstraint(Sketcher.Constraint("Distance", 1, Q("6.5 mm")))
sketch24.addConstraint(Sketcher.Constraint("DistanceX", 2, 3, -1, 1, Q("0.550269 mm")))
sketch24.addConstraint(Sketcher.Constraint("DistanceY", 0, 2, -1, 1, Q("7.37289 mm")))
pocket16 = body.newObject("PartDesign::Pocket", "Pocket015")
pocket16.Profile = sketch24
pocket16.Type = "ThroughAll"

sketch25 = body.newObject("Sketcher::SketchObject", "Sketch024")
sketch25.AttachmentSupport = (doc.getObject("XZ_Plane"), [""])
sketch25.MapMode = "FlatFace"
sketch25.AttachmentOffset = App.Placement(V(0, 0, -3), App.Rotation())
add_polygon(sketch25, [(7.4, -11.7), (7.4, -7.4), (11.8, -7.4), (11.8, -11.7)])
sketch25.addConstraint(Sketcher.Constraint("Vertical", 0))
sketch25.addConstraint(Sketcher.Constraint("Horizontal", 1))
sketch25.addConstraint(Sketcher.Constraint("Vertical", 2))
sketch25.addConstraint(Sketcher.Constraint("Horizontal", 3))
sketch25.addConstraint(Sketcher.Constraint("Equal", 3, 0))
sketch25.addConstraint(Sketcher.Constraint("DistanceX", 1, 1, 1, 2, Q("4.363157 mm")))
sketch25.addConstraint(Sketcher.Constraint("DistanceY", 0, 2, -1, 1, Q("7.37289 mm")))
sketch25.addConstraint(Sketcher.Constraint("DistanceX", -1, 1, 1, 2, Q("11.78389 mm")))
pocket17 = body.newObject("PartDesign::Pocket", "Pocket016")
pocket17.Profile = sketch25
pocket17.Length = 10
doc.recompute()

fillet2 = body.newObject("PartDesign::Fillet", "Fillet001")
fillet2.Base = (pocket17, edges_at(pocket17, [(5.142, -7.5, 4.383), (5.142, -7.5, -6.128)]))
fillet2.Radius = 6

sketch26 = body.newObject("Sketcher::SketchObject", "Sketch025")
sketch26.AttachmentSupport = (doc.getObject("XZ_Plane"), [""])
sketch26.MapMode = "FlatFace"
sketch26.AttachmentOffset = App.Placement(V(0, 0, -57), App.Rotation())
sketch26.addGeometry(Part.LineSegment(V(-14, -13.6, 0), V(-12.5, -14.9, 0)), False)
sketch26.addGeometry(Part.ArcOfCircle(Part.Circle(V(-13.3, -14.3, 0), V(0, 0, 1), 1), math.radians(137), math.radians(317)), False)
sketch26.addConstraint(Sketcher.Constraint("Coincident", 0, 1, 1, 1))
sketch26.addConstraint(Sketcher.Constraint("Coincident", 1, 2, 0, 2))
sketch26.addConstraint(Sketcher.Constraint("Radius", 1, Q("1 mm")))
sketch26.addConstraint(Sketcher.Constraint("DistanceX", 1, 3, -1, 1, Q("13.266431 mm")))
sketch26.addConstraint(Sketcher.Constraint("DistanceY", 1, 3, -1, 1, Q("14.25664 mm")))
sketch26.addConstraint(Sketcher.Constraint("DistanceX", 1, 2, -1, 1, Q("12.534358 mm")))
sketch26.addConstraint(Sketcher.Constraint("DistanceX", 0, 1, -1, 1, Q("13.998504 mm")))
pad9 = body.newObject("PartDesign::Pad", "Pad008")
pad9.Profile = sketch26
pad9.Length = 2

sketch27 = body.newObject("Sketcher::SketchObject", "Sketch026")
sketch27.AttachmentSupport = (doc.getObject("XZ_Plane"), [""])
sketch27.MapMode = "FlatFace"
sketch27.AttachmentOffset = App.Placement(V(0, 0, -13), App.Rotation())
add_polygon(sketch27, [(8, -8.1), (7.4, -11.7), (11.1, -11.7)])
sketch27.addConstraint(Sketcher.Constraint("Horizontal", 1))
sketch27.addConstraint(Sketcher.Constraint("Angle", 2, Q("130 deg")))
sketch27.addConstraint(Sketcher.Constraint("DistanceX", -1, 1, 2, 2, Q("8 mm")))
sketch27.addConstraint(Sketcher.Constraint("Distance", 2, Q("4.794518 mm")))
sketch27.addConstraint(Sketcher.Constraint("DistanceX", 1, 1, 1, 2, Q("3.661123 mm")))
sketch27.addConstraint(Sketcher.Constraint("DistanceY", 0, 2, -1, 1, Q("11.736047 mm")))
pocket18 = body.newObject("PartDesign::Pocket", "Pocket017")
pocket18.Profile = sketch27
pocket18.Length = 12

doc.recompute()
